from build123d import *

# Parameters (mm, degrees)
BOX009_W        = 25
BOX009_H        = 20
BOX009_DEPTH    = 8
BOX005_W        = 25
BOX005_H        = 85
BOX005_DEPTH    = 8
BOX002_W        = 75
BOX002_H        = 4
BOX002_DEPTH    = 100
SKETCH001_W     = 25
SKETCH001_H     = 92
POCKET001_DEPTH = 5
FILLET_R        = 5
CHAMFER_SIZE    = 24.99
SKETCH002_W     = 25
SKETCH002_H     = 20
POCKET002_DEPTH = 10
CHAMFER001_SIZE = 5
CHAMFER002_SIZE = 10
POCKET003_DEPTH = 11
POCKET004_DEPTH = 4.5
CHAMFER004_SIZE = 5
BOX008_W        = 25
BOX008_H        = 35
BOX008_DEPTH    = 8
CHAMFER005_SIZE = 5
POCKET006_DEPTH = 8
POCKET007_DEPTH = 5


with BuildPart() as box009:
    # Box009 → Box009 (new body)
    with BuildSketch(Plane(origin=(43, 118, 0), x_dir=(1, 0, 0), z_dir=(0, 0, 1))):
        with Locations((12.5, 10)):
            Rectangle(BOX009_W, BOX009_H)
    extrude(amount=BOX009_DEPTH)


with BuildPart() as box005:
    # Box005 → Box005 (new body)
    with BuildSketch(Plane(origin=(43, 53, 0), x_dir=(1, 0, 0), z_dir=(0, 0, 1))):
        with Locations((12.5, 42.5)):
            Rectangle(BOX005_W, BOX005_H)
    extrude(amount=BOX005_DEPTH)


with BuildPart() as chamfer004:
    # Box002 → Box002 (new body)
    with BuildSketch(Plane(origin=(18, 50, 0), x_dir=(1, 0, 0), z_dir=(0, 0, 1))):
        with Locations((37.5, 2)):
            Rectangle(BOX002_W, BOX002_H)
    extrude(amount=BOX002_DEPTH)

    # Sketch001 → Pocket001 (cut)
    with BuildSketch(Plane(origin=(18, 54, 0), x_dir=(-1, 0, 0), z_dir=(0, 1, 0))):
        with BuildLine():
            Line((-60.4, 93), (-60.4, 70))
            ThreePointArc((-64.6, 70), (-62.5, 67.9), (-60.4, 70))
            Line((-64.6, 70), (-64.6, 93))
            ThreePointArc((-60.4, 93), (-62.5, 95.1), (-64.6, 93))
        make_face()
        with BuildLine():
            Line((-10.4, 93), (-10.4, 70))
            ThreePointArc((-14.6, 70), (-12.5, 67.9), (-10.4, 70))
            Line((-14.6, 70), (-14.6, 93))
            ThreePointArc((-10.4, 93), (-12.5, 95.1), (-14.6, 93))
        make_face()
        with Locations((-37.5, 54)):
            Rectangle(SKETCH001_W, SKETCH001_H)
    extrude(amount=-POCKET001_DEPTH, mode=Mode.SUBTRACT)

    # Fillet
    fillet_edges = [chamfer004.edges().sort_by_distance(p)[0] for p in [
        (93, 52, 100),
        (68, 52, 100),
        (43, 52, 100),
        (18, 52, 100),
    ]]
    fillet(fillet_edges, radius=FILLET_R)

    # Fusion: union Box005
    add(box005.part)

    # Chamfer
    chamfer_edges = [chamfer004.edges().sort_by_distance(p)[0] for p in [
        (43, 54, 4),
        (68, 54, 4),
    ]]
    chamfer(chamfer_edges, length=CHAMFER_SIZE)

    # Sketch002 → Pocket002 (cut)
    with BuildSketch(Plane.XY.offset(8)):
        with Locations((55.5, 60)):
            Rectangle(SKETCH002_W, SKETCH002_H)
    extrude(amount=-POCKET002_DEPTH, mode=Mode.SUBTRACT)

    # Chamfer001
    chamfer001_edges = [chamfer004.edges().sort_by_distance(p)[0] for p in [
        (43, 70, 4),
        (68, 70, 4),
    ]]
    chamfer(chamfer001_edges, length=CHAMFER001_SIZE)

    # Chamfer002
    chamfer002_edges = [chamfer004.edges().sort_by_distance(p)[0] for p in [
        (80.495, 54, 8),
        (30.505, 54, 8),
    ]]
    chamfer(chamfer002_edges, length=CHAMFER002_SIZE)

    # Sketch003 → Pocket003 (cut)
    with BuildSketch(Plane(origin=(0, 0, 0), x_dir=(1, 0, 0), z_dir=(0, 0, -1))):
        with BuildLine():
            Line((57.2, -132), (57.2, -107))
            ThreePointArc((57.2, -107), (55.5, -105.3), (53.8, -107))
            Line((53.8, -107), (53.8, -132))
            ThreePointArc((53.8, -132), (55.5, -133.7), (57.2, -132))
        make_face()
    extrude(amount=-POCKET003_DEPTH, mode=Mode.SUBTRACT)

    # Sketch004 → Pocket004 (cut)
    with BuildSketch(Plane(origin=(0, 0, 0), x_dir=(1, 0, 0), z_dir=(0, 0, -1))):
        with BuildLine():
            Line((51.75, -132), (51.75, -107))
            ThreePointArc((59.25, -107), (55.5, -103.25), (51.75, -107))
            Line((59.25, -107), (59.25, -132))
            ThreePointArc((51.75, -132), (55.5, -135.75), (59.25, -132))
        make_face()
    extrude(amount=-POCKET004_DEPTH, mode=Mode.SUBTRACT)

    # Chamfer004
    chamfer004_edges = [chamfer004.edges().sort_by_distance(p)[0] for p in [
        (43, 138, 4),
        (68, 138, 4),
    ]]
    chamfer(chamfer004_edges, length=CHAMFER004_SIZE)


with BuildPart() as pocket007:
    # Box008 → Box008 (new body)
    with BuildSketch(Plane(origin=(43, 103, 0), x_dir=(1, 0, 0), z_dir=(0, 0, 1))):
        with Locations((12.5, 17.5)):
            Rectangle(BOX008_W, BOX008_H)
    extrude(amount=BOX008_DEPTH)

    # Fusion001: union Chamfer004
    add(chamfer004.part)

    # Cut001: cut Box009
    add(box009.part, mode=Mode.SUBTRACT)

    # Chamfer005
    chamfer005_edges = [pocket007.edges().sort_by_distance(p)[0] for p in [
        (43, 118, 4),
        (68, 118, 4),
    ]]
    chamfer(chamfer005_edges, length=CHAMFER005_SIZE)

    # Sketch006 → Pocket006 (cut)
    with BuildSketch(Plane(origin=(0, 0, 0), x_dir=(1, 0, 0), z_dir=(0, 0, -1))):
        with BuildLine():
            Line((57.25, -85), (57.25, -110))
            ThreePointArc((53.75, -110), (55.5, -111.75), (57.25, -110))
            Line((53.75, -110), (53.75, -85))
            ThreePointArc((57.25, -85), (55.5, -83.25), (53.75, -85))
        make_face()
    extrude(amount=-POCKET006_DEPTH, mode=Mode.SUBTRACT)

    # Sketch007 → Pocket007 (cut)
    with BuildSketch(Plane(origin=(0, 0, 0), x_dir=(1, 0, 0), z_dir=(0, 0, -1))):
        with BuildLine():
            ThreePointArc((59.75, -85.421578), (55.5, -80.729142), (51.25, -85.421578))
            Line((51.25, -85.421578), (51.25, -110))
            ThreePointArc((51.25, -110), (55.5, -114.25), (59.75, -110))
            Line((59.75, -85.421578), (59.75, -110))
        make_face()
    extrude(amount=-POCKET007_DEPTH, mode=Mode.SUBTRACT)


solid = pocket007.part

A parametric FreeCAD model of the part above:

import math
import FreeCAD as App
import Part
import Sketcher
Q = App.Units.Quantity


def edges_at(feature, points):
    """Names of the edges that pass closest to the given points."""
    edges = feature.Shape.Edges
    near = lambda p: min(range(len(edges)), key=lambda i: edges[i].distToShape(Part.Vertex(*p))[0])
    return sorted({f"Edge{near(p) + 1}" for p in points})

doc = App.newDocument("Part")
body = doc.addObject("PartDesign::Body", "Body")

sketch1 = doc.addObject("Sketcher::SketchObject", "Sketch")
body.addObject(sketch1)
sketch1.AttachmentSupport = (doc.XY_Plane, [""])
sketch1.MapMode = "FlatFace"
sketch1.addGeometry(Part.LineSegment(App.Vector(43, 138, 0), App.Vector(43, 118, 0)), False)
sketch1.addGeometry(Part.LineSegment(App.Vector(43, 118, 0), App.Vector(68, 118, 0)), False)
sketch1.addGeometry(Part.LineSegment(App.Vector(68, 118, 0), App.Vector(68, 138, 0)), False)
sketch1.addGeometry(Part.LineSegment(App.Vector(68, 138, 0), App.Vector(43, 138, 0)), False)
sketch1.addConstraint(Sketcher.Constraint("Coincident", 0, 2, 1, 1))
sketch1.addConstraint(Sketcher.Constraint("Coincident", 1, 2, 2, 1))
sketch1.addConstraint(Sketcher.Constraint("Coincident", 2, 2, 3, 1))
sketch1.addConstraint(Sketcher.Constraint("Coincident", 3, 2, 0, 1))
sketch1.addConstraint(Sketcher.Constraint("Vertical", 0))
sketch1.addConstraint(Sketcher.Constraint("Horizontal", 1))
sketch1.addConstraint(Sketcher.Constraint("Vertical", 2))
sketch1.addConstraint(Sketcher.Constraint("Horizontal", 3))
sketch1.addConstraint(Sketcher.Constraint("DistanceX", 1, 1, 1, 2, Q("25 mm")))
sketch1.addConstraint(Sketcher.Constraint("DistanceY", 0, 2, 0, 1, Q("20 mm")))
sketch1.addConstraint(Sketcher.Constraint("DistanceX", -1, 1, 0, 2, Q("43 mm")))
sketch1.addConstraint(Sketcher.Constraint("DistanceY", -1, 1, 0, 2, Q("118 mm")))
pad1 = doc.addObject("PartDesign::Pad", "Pad")
body.addObject(pad1)
pad1.Profile = sketch1
pad1.Length = 8
body2 = doc.addObject("PartDesign::Body", "Body001")

sketch2 = doc.addObject("Sketcher::SketchObject", "Sketch001")
body2.addObject(sketch2)
sketch2.AttachmentSupport = (doc.getObject("XY_Plane001"), [""])
sketch2.MapMode = "FlatFace"
sketch2.addGeometry(Part.LineSegment(App.Vector(43, 138, 0), App.Vector(43, 53, 0)), False)
sketch2.addGeometry(Part.LineSegment(App.Vector(43, 53, 0), App.Vector(68, 53, 0)), False)
sketch2.addGeometry(Part.LineSegment(App.Vector(68, 53, 0), App.Vector(68, 138, 0)), False)
sketch2.addGeometry(Part.LineSegment(App.Vector(68, 138, 0), App.Vector(43, 138, 0)), False)
sketch2.addConstraint(Sketcher.Constraint("Coincident", 0, 2, 1, 1))
sketch2.addConstraint(Sketcher.Constraint("Coincident", 1, 2, 2, 1))
sketch2.addConstraint(Sketcher.Constraint("Coincident", 2, 2, 3, 1))
sketch2.addConstraint(Sketcher.Constraint("Coincident", 3, 2, 0, 1))
sketch2.addConstraint(Sketcher.Constraint("Vertical", 0))
sketch2.addConstraint(Sketcher.Constraint("Horizontal", 1))
sketch2.addConstraint(Sketcher.Constraint("Vertical", 2))
sketch2.addConstraint(Sketcher.Constraint("Horizontal", 3))
sketch2.addConstraint(Sketcher.Constraint("DistanceX", 1, 1, 1, 2, Q("25 mm")))
sketch2.addConstraint(Sketcher.Constraint("DistanceY", 0, 2, 0, 1, Q("85 mm")))
sketch2.addConstraint(Sketcher.Constraint("DistanceX", -1, 1, 0, 2, Q("43 mm")))
sketch2.addConstraint(Sketcher.Constraint("DistanceY", -1, 1, 0, 2, Q("53 mm")))
pad2 = doc.addObject("PartDesign::Pad", "Pad001")
body2.addObject(pad2)
pad2.Profile = sketch2
pad2.Length = 8
body3 = doc.addObject("PartDesign::Body", "Body002")

sketch3 = doc.addObject("Sketcher::SketchObject", "Sketch002")
body3.addObject(sketch3)
sketch3.AttachmentSupport = (doc.getObject("XY_Plane002"), [""])
sketch3.MapMode = "FlatFace"
sketch3.addGeometry(Part.LineSegment(App.Vector(18, 54, 0), App.Vector(18, 50, 0)), False)
sketch3.addGeometry(Part.LineSegment(App.Vector(18, 50, 0), App.Vector(93, 50, 0)), False)
sketch3.addGeometry(Part.LineSegment(App.Vector(93, 50, 0), App.Vector(93, 54, 0)), False)
sketch3.addGeometry(Part.LineSegment(App.Vector(93, 54, 0), App.Vector(18, 54, 0)), False)
sketch3.addConstraint(Sketcher.Constraint("Coincident", 0, 2, 1, 1))
sketch3.addConstraint(Sketcher.Constraint("Coincident", 1, 2, 2, 1))
sketch3.addConstraint(Sketcher.Constraint("Coincident", 2, 2, 3, 1))
sketch3.addConstraint(Sketcher.Constraint("Coincident", 3, 2, 0, 1))
sketch3.addConstraint(Sketcher.Constraint("Vertical", 0))
sketch3.addConstraint(Sketcher.Constraint("Horizontal", 1))
sketch3.addConstraint(Sketcher.Constraint("Vertical", 2))
sketch3.addConstraint(Sketcher.Constraint("Horizontal", 3))
sketch3.addConstraint(Sketcher.Constraint("DistanceX", 1, 1, 1, 2, Q("75 mm")))
sketch3.addConstraint(Sketcher.Constraint("DistanceY", 0, 2, 0, 1, Q("4 mm")))
sketch3.addConstraint(Sketcher.Constraint("DistanceX", -1, 1, 0, 2, Q("18 mm")))
sketch3.addConstraint(Sketcher.Constraint("DistanceY", -1, 1, 0, 2, Q("50 mm")))
pad3 = doc.addObject("PartDesign::Pad", "Pad002")
body3.addObject(pad3)
pad3.Profile = sketch3
pad3.Length = 100

sketch4 = doc.addObject("Sketcher::SketchObject", "Sketch003")
body3.addObject(sketch4)
sketch4.AttachmentSupport = (doc.getObject("XZ_Plane002"), [""])
sketch4.MapMode = "FlatFace"
sketch4.AttachmentOffset = App.Placement(App.Vector(0, 0, -54), App.Rotation())
sketch4.addGeometry(Part.LineSegment(App.Vector(78.4, 70, 0), App.Vector(78.4, 93, 0)), False)
sketch4.addGeometry(Part.ArcOfCircle(Part.Circle(App.Vector(80.5, 93, 0), App.Vector(0, 0, 1), 2.1), math.radians(0), math.radians(180)), False)
sketch4.addGeometry(Part.LineSegment(App.Vector(82.6, 93, 0), App.Vector(82.6, 70, 0)), False)
sketch4.addGeometry(Part.ArcOfCircle(Part.Circle(App.Vector(80.5, 70, 0), App.Vector(0, 0, 1), 2.1), math.radians(180), math.radians(360)), False)
sketch4.addGeometry(Part.LineSegment(App.Vector(28.4, 70, 0), App.Vector(28.4, 93, 0)), False)
sketch4.addGeometry(Part.ArcOfCircle(Part.Circle(App.Vector(30.5, 93, 0), App.Vector(0, 0, 1), 2.1), math.radians(0), math.radians(180)), False)
sketch4.addGeometry(Part.LineSegment(App.Vector(32.6, 93, 0), App.Vector(32.6, 70, 0)), False)
sketch4.addGeometry(Part.ArcOfCircle(Part.Circle(App.Vector(30.5, 70, 0), App.Vector(0, 0, 1), 2.1), math.radians(180), math.radians(360)), False)
sketch4.addGeometry(Part.LineSegment(App.Vector(68, 100, 0), App.Vector(68, 8, 0)), False)
sketch4.addGeometry(Part.LineSegment(App.Vector(68, 8, 0), App.Vector(43, 8, 0)), False)
sketch4.addGeometry(Part.LineSegment(App.Vector(43, 8, 0), App.Vector(43, 100, 0)), False)
sketch4.addGeometry(Part.LineSegment(App.Vector(43, 100, 0), App.Vector(68, 100, 0)), False)
sketch4.addConstraint(Sketcher.Constraint("Tangent", 0, 2, 1, 2))
sketch4.addConstraint(Sketcher.Constraint("Tangent", 1, 1, 2, 1))
sketch4.addConstraint(Sketcher.Constraint("Tangent", 2, 2, 3, 2))
sketch4.addConstraint(Sketcher.Constraint("Tangent", 3, 1, 0, 1))
sketch4.addConstraint(Sketcher.Constraint("Tangent", 4, 2, 5, 2))
sketch4.addConstraint(Sketcher.Constraint("Tangent", 5, 1, 6, 1))
sketch4.addConstraint(Sketcher.Constraint("Tangent", 6, 2, 7, 2))
sketch4.addConstraint(Sketcher.Constraint("Tangent", 7, 1, 4, 1))
sketch4.addConstraint(Sketcher.Constraint("Coincident", 8, 2, 9, 1))
sketch4.addConstraint(Sketcher.Constraint("Coincident", 9, 2, 10, 1))
sketch4.addConstraint(Sketcher.Constraint("Coincident", 10, 2, 11, 1))
sketch4.addConstraint(Sketcher.Constraint("Coincident", 11, 2, 8, 1))
sketch4.addConstraint(Sketcher.Constraint("Vertical", 0))
sketch4.addConstraint(Sketcher.Constraint("Vertical", 2))
sketch4.addConstraint(Sketcher.Constraint("Vertical", 4))
sketch4.addConstraint(Sketcher.Constraint("Vertical", 6))
sketch4.addConstraint(Sketcher.Constraint("Vertical", 8))
sketch4.addConstraint(Sketcher.Constraint("Horizontal", 9))
sketch4.addConstraint(Sketcher.Constraint("Vertical", 10))
sketch4.addConstraint(Sketcher.Constraint("Horizontal", 11))
sketch4.addConstraint(Sketcher.Constraint("Equal", 3, 5))
sketch4.addConstraint(Sketcher.Constraint("Horizontal", 1, 3, 5, 3))
sketch4.addConstraint(Sketcher.Constraint("Horizontal", 3, 3, 7, 3))
sketch4.addConstraint(Sketcher.Constraint("Radius", 1, Q("2.1 mm")))
sketch4.addConstraint(Sketcher.Constraint("DistanceX", 9, 2, 9, 1, Q("25 mm")))
sketch4.addConstraint(Sketcher.Constraint("DistanceY", 0, 1, 0, 2, Q("23 mm")))
sketch4.addConstraint(Sketcher.Constraint("DistanceY", 8, 2, 8, 1, Q("92 mm")))
sketch4.addConstraint(Sketcher.Constraint("DistanceY", -1, 1, 1, 3, Q("93 mm")))
sketch4.addConstraint(Sketcher.Constraint("DistanceX", -1, 1, 8, 2, Q("68 mm")))
sketch4.addConstraint(Sketcher.Constraint("DistanceY", -1, 1, 8, 2, Q("8 mm")))
sketch4.addConstraint(Sketcher.Constraint("DistanceX", 5, 3, 1, 3, Q("50 mm")))
sketch4.addConstraint(Sketcher.Constraint("DistanceX", -1, 1, 1, 3, Q("80.5 mm")))
pocket1 = doc.addObject("PartDesign::Pocket", "Pocket")
body3.addObject(pocket1)
pocket1.Profile = sketch4
pocket1.Length = 5
pocket1.Reversed = True
doc.recompute()

fillet = doc.addObject("PartDesign::Fillet", "Fillet")
body3.addObject(fillet)
fillet.Base = (pocket1, edges_at(pocket1, [
    (93, 52, 100),
    (68, 52, 100),
    (43, 52, 100),
    (18, 52, 100),
]))
fillet.Radius = 5
doc.recompute()

boolean = doc.addObject("PartDesign::Boolean", "Boolean")
body3.addObject(boolean)
boolean.Type = "Fuse"
boolean.addObjects([body2])
doc.recompute()

chamfer = doc.addObject("PartDesign::Chamfer", "Chamfer")
body3.addObject(chamfer)
chamfer.Base = (boolean, edges_at(boolean, [(43, 54, 4), (68, 54, 4)]))
chamfer.Size = 24.99

sketch5 = doc.addObject("Sketcher::SketchObject", "Sketch004")
body3.addObject(sketch5)
sketch5.AttachmentSupport = (doc.getObject("XY_Plane002"), [""])
sketch5.MapMode = "FlatFace"
sketch5.AttachmentOffset = App.Placement(App.Vector(0, 0, 8), App.Rotation())
sketch5.addGeometry(Part.LineSegment(App.Vector(43, 70, 0), App.Vector(43, 50, 0)), False)
sketch5.addGeometry(Part.LineSegment(App.Vector(43, 50, 0), App.Vector(68, 50, 0)), False)
sketch5.addGeometry(Part.LineSegment(App.Vector(68, 50, 0), App.Vector(68, 70, 0)), False)
sketch5.addGeometry(Part.LineSegment(App.Vector(68, 70, 0), App.Vector(43, 70, 0)), False)
sketch5.addConstraint(Sketcher.Constraint("Coincident", 0, 2, 1, 1))
sketch5.addConstraint(Sketcher.Constraint("Coincident", 1, 2, 2, 1))
sketch5.addConstraint(Sketcher.Constraint("Coincident", 2, 2, 3, 1))
sketch5.addConstraint(Sketcher.Constraint("Coincident", 3, 2, 0, 1))
sketch5.addConstraint(Sketcher.Constraint("Vertical", 0))
sketch5.addConstraint(Sketcher.Constraint("Horizontal", 1))
sketch5.addConstraint(Sketcher.Constraint("Vertical", 2))
sketch5.addConstraint(Sketcher.Constraint("Horizontal", 3))
sketch5.addConstraint(Sketcher.Constraint("DistanceX", 1, 1, 1, 2, Q("25 mm")))
sketch5.addConstraint(Sketcher.Constraint("DistanceY", 0, 2, 0, 1, Q("20 mm")))
sketch5.addConstraint(Sketcher.Constraint("DistanceX", -1, 1, 0, 2, Q("43 mm")))
sketch5.addConstraint(Sketcher.Constraint("DistanceY", -1, 1, 0, 2, Q("50 mm")))
pocket2 = doc.addObject("PartDesign::Pocket", "Pocket001")
body3.addObject(pocket2)
pocket2.Profile = sketch5
pocket2.Length = 10
doc.recompute()

chamfer2 = doc.addObject("PartDesign::Chamfer", "Chamfer001")
body3.addObject(chamfer2)
chamfer2.Base = (pocket2, edges_at(pocket2, [(43, 70, 4), (68, 70, 4)]))
chamfer2.Size = 5
doc.recompute()

chamfer3 = doc.addObject("PartDesign::Chamfer", "Chamfer002")
body3.addObject(chamfer3)
chamfer3.Base = (chamfer2, edges_at(chamfer2, [(80.495, 54, 8), (30.505, 54, 8)]))
chamfer3.Size = 10

sketch6 = doc.addObject("Sketcher::SketchObject", "Sketch005")
body3.addObject(sketch6)
sketch6.AttachmentSupport = (doc.getObject("XY_Plane002"), [""])
sketch6.MapMode = "FlatFace"
sketch6.addGeometry(Part.LineSegment(App.Vector(57.2, 132, 0), App.Vector(57.2, 107, 0)), False)
sketch6.addGeometry(Part.ArcOfCircle(Part.Circle(App.Vector(55.5, 107, 0), App.Vector(0, 0, 1), 1.7), math.radians(180), math.radians(360)), False)
sketch6.addGeometry(Part.LineSegment(App.Vector(53.8, 107, 0), App.Vector(53.8, 132, 0)), False)
sketch6.addGeometry(Part.ArcOfCircle(Part.Circle(App.Vector(55.5, 132, 0), App.Vector(0, 0, 1), 1.7), math.radians(0), math.radians(180)), False)
sketch6.addConstraint(Sketcher.Constraint("Tangent", 0, 2, 1, 2))
sketch6.addConstraint(Sketcher.Constraint("Tangent", 1, 1, 2, 1))
sketch6.addConstraint(Sketcher.Constraint("Tangent", 2, 2, 3, 2))
sketch6.addConstraint(Sketcher.Constraint("Tangent", 3, 1, 0, 1))
sketch6.addConstraint(Sketcher.Constraint("Vertical", 0))
sketch6.addConstraint(Sketcher.Constraint("Vertical", 2))
sketch6.addConstraint(Sketcher.Constraint("Radius", 1, Q("1.7 mm")))
sketch6.addConstraint(Sketcher.Constraint("DistanceY", 0, 2, 0, 1, Q("25 mm")))
sketch6.addConstraint(Sketcher.Constraint("DistanceY", -1, 1, 1, 3, Q("107 mm")))
sketch6.addConstraint(Sketcher.Constraint("DistanceX", -1, 1, 1, 3, Q("55.5 mm")))
pocket3 = doc.addObject("PartDesign::Pocket", "Pocket002")
body3.addObject(pocket3)
pocket3.Profile = sketch6
pocket3.Length = 11
pocket3.Reversed = True

sketch7 = doc.addObject("Sketcher::SketchObject", "Sketch006")
body3.addObject(sketch7)
sketch7.AttachmentSupport = (doc.getObject("XY_Plane002"), [""])
sketch7.MapMode = "FlatFace"
sketch7.addGeometry(Part.LineSegment(App.Vector(51.75, 107, 0), App.Vector(51.75, 132, 0)), False)
sketch7.addGeometry(Part.ArcOfCircle(Part.Circle(App.Vector(55.5, 132, 0), App.Vector(0, 0, 1), 3.75), math.radians(0), math.radians(180)), False)
sketch7.addGeometry(Part.LineSegment(App.Vector(59.25, 132, 0), App.Vector(59.25, 107, 0)), False)
sketch7.addGeometry(Part.ArcOfCircle(Part.Circle(App.Vector(55.5, 107, 0), App.Vector(0, 0, 1), 3.75), math.radians(180), math.radians(360)), False)
sketch7.addConstraint(Sketcher.Constraint("Tangent", 0, 2, 1, 2))
sketch7.addConstraint(Sketcher.Constraint("Tangent", 1, 1, 2, 1))
sketch7.addConstraint(Sketcher.Constraint("Tangent", 2, 2, 3, 2))
sketch7.addConstraint(Sketcher.Constraint("Tangent", 3, 1, 0, 1))
sketch7.addConstraint(Sketcher.Constraint("Vertical", 0))
sketch7.addConstraint(Sketcher.Constraint("Vertical", 2))
sketch7.addConstraint(Sketcher.Constraint("DistanceY", 0, 1, 0, 2, Q("25 mm")))
sketch7.addConstraint(Sketcher.Constraint("Radius", 1, Q("3.75 mm")))
sketch7.addConstraint(Sketcher.Constraint("DistanceY", -1, 1, 1, 3, Q("132 mm")))
sketch7.addConstraint(Sketcher.Constraint("DistanceX", -1, 1, 1, 3, Q("55.5 mm")))
pocket4 = doc.addObject("PartDesign::Pocket", "Pocket003")
body3.addObject(pocket4)
pocket4.Profile = sketch7
pocket4.Length = 4.5
pocket4.Reversed = True
doc.recompute()

chamfer4 = doc.addObject("PartDesign::Chamfer", "Chamfer003")
body3.addObject(chamfer4)
chamfer4.Base = (pocket4, edges_at(pocket4, [(43, 138, 4), (68, 138, 4)]))
chamfer4.Size = 5
body4 = doc.addObject("PartDesign::Body", "Body003")

sketch8 = doc.addObject("Sketcher::SketchObject", "Sketch007")
body4.addObject(sketch8)
sketch8.AttachmentSupport = (doc.getObject("XY_Plane003"), [""])
sketch8.MapMode = "FlatFace"
sketch8.addGeometry(Part.LineSegment(App.Vector(43, 138, 0), App.Vector(43, 103, 0)), False)
sketch8.addGeometry(Part.LineSegment(App.Vector(43, 103, 0), App.Vector(68, 103, 0)), False)
sketch8.addGeometry(Part.LineSegment(App.Vector(68, 103, 0), App.Vector(68, 138, 0)), False)
sketch8.addGeometry(Part.LineSegment(App.Vector(68, 138, 0), App.Vector(43, 138, 0)), False)
sketch8.addConstraint(Sketcher.Constraint("Coincident", 0, 2, 1, 1))
sketch8.addConstraint(Sketcher.Constraint("Coincident", 1, 2, 2, 1))
sketch8.addConstraint(Sketcher.Constraint("Coincident", 2, 2, 3, 1))
sketch8.addConstraint(Sketcher.Constraint("Coincident", 3, 2, 0, 1))
sketch8.addConstraint(Sketcher.Constraint("Vertical", 0))
sketch8.addConstraint(Sketcher.Constraint("Horizontal", 1))
sketch8.addConstraint(Sketcher.Constraint("Vertical", 2))
sketch8.addConstraint(Sketcher.Constraint("Horizontal", 3))
sketch8.addConstraint(Sketcher.Constraint("DistanceX", 1, 1, 1, 2, Q("25 mm")))
sketch8.addConstraint(Sketcher.Constraint("DistanceY", 0, 2, 0, 1, Q("35 mm")))
sketch8.addConstraint(Sketcher.Constraint("DistanceX", -1, 1, 0, 2, Q("43 mm")))
sketch8.addConstraint(Sketcher.Constraint("DistanceY", -1, 1, 0, 2, Q("103 mm")))
pad4 = doc.addObject("PartDesign::Pad", "Pad003")
body4.addObject(pad4)
pad4.Profile = sketch8
pad4.Length = 8
doc.recompute()

boolean2 = doc.addObject("PartDesign::Boolean", "Boolean001")
body4.addObject(boolean2)
boolean2.Type = "Fuse"
boolean2.addObjects([body3])
doc.recompute()

boolean3 = doc.addObject("PartDesign::Boolean", "Boolean002")
body4.addObject(boolean3)
boolean3.Type = "Cut"
boolean3.addObjects([body])
doc.recompute()

chamfer5 = doc.addObject("PartDesign::Chamfer", "Chamfer004")
body4.addObject(chamfer5)
chamfer5.Base = (boolean3, edges_at(boolean3, [(43, 118, 4), (68, 118, 4)]))
chamfer5.Size = 5

sketch9 = doc.addObject("Sketcher::SketchObject", "Sketch008")
body4.addObject(sketch9)
sketch9.AttachmentSupport = (doc.getObject("XY_Plane003"), [""])
sketch9.MapMode = "FlatFace"
sketch9.addGeometry(Part.LineSegment(App.Vector(57.25, 110, 0), App.Vector(57.25, 85, 0)), False)
sketch9.addGeometry(Part.ArcOfCircle(Part.Circle(App.Vector(55.5, 85, 0), App.Vector(0, 0, 1), 1.75), math.radians(180), math.radians(360)), False)
sketch9.addGeometry(Part.LineSegment(App.Vector(53.75, 85, 0), App.Vector(53.75, 110, 0)), False)
sketch9.addGeometry(Part.ArcOfCircle(Part.Circle(App.Vector(55.5, 110, 0), App.Vector(0, 0, 1), 1.75), math.radians(0), math.radians(180)), False)
sketch9.addConstraint(Sketcher.Constraint("Tangent", 0, 2, 1, 2))
sketch9.addConstraint(Sketcher.Constraint("Tangent", 1, 1, 2, 1))
sketch9.addConstraint(Sketcher.Constraint("Tangent", 2, 2, 3, 2))
sketch9.addConstraint(Sketcher.Constraint("Tangent", 3, 1, 0, 1))
sketch9.addConstraint(Sketcher.Constraint("Vertical", 0))
sketch9.addConstraint(Sketcher.Constraint("Vertical", 2))
sketch9.addConstraint(Sketcher.Constraint("DistanceY", 0, 2, 0, 1, Q("25 mm")))
sketch9.addConstraint(Sketcher.Constraint("Radius", 1, Q("1.75 mm")))
sketch9.addConstraint(Sketcher.Constraint("DistanceY", -1, 1, 1, 3, Q("85 mm")))
sketch9.addConstraint(Sketcher.Constraint("DistanceX", -1, 1, 1, 3, Q("55.5 mm")))
pocket5 = doc.addObject("PartDesign::Pocket", "Pocket004")
body4.addObject(pocket5)
pocket5.Profile = sketch9
pocket5.Length = 8
pocket5.Reversed = True

sketch10 = doc.addObject("Sketcher::SketchObject", "Sketch009")
body4.addObject(sketch10)
sketch10.AttachmentSupport = (doc.getObject("XY_Plane003"), [""])
sketch10.MapMode = "FlatFace"
sketch10.addGeometry(Part.ArcOfCircle(Part.Circle(App.Vector(55.5, 85, 0), App.Vector(0, 0, 1), 4.270858), math.radians(174.335087), math.radians(365.664913)), False)
sketch10.addGeometry(Part.LineSegment(App.Vector(51.25, 85.421578, 0), App.Vector(51.25, 110, 0)), False)
sketch10.addGeometry(Part.ArcOfCircle(Part.Circle(App.Vector(55.5, 110, 0), App.Vector(0, 0, 1), 4.25), math.radians(0), math.radians(180)), False)
sketch10.addGeometry(Part.LineSegment(App.Vector(59.75, 110, 0), App.Vector(59.75, 85.421578, 0)), False)
sketch10.addConstraint(Sketcher.Constraint("Coincident", 0, 1, 1, 1))
sketch10.addConstraint(Sketcher.Constraint("Tangent", 1, 2, 2, 2))
sketch10.addConstraint(Sketcher.Constraint("Tangent", 2, 1, 3, 1))
sketch10.addConstraint(Sketcher.Constraint("Coincident", 3, 2, 0, 2))
sketch10.addConstraint(Sketcher.Constraint("Vertical", 1))
sketch10.addConstraint(Sketcher.Constraint("Vertical", 3))
sketch10.addConstraint(Sketcher.Constraint("Horizontal", 0, 1, 3, 2))
sketch10.addConstraint(Sketcher.Constraint("Radius", 2, Q("4.25 mm")))
sketch10.addConstraint(Sketcher.Constraint("DistanceY", -1, 1, 0, 3, Q("85 mm")))
sketch10.addConstraint(Sketcher.Constraint("DistanceY", -1, 1, 2, 3, Q("110 mm")))
sketch10.addConstraint(Sketcher.Constraint("DistanceX", -1, 1, 0, 3, Q("55.5 mm")))
sketch10.addConstraint(Sketcher.Constraint("Radius", 0, Q("4.270858 mm")))
pocket6 = doc.addObject("PartDesign::Pocket", "Pocket005")
body4.addObject(pocket6)
pocket6.Profile = sketch10
pocket6.Length = 5
pocket6.Reversed = True

doc.recompute()
